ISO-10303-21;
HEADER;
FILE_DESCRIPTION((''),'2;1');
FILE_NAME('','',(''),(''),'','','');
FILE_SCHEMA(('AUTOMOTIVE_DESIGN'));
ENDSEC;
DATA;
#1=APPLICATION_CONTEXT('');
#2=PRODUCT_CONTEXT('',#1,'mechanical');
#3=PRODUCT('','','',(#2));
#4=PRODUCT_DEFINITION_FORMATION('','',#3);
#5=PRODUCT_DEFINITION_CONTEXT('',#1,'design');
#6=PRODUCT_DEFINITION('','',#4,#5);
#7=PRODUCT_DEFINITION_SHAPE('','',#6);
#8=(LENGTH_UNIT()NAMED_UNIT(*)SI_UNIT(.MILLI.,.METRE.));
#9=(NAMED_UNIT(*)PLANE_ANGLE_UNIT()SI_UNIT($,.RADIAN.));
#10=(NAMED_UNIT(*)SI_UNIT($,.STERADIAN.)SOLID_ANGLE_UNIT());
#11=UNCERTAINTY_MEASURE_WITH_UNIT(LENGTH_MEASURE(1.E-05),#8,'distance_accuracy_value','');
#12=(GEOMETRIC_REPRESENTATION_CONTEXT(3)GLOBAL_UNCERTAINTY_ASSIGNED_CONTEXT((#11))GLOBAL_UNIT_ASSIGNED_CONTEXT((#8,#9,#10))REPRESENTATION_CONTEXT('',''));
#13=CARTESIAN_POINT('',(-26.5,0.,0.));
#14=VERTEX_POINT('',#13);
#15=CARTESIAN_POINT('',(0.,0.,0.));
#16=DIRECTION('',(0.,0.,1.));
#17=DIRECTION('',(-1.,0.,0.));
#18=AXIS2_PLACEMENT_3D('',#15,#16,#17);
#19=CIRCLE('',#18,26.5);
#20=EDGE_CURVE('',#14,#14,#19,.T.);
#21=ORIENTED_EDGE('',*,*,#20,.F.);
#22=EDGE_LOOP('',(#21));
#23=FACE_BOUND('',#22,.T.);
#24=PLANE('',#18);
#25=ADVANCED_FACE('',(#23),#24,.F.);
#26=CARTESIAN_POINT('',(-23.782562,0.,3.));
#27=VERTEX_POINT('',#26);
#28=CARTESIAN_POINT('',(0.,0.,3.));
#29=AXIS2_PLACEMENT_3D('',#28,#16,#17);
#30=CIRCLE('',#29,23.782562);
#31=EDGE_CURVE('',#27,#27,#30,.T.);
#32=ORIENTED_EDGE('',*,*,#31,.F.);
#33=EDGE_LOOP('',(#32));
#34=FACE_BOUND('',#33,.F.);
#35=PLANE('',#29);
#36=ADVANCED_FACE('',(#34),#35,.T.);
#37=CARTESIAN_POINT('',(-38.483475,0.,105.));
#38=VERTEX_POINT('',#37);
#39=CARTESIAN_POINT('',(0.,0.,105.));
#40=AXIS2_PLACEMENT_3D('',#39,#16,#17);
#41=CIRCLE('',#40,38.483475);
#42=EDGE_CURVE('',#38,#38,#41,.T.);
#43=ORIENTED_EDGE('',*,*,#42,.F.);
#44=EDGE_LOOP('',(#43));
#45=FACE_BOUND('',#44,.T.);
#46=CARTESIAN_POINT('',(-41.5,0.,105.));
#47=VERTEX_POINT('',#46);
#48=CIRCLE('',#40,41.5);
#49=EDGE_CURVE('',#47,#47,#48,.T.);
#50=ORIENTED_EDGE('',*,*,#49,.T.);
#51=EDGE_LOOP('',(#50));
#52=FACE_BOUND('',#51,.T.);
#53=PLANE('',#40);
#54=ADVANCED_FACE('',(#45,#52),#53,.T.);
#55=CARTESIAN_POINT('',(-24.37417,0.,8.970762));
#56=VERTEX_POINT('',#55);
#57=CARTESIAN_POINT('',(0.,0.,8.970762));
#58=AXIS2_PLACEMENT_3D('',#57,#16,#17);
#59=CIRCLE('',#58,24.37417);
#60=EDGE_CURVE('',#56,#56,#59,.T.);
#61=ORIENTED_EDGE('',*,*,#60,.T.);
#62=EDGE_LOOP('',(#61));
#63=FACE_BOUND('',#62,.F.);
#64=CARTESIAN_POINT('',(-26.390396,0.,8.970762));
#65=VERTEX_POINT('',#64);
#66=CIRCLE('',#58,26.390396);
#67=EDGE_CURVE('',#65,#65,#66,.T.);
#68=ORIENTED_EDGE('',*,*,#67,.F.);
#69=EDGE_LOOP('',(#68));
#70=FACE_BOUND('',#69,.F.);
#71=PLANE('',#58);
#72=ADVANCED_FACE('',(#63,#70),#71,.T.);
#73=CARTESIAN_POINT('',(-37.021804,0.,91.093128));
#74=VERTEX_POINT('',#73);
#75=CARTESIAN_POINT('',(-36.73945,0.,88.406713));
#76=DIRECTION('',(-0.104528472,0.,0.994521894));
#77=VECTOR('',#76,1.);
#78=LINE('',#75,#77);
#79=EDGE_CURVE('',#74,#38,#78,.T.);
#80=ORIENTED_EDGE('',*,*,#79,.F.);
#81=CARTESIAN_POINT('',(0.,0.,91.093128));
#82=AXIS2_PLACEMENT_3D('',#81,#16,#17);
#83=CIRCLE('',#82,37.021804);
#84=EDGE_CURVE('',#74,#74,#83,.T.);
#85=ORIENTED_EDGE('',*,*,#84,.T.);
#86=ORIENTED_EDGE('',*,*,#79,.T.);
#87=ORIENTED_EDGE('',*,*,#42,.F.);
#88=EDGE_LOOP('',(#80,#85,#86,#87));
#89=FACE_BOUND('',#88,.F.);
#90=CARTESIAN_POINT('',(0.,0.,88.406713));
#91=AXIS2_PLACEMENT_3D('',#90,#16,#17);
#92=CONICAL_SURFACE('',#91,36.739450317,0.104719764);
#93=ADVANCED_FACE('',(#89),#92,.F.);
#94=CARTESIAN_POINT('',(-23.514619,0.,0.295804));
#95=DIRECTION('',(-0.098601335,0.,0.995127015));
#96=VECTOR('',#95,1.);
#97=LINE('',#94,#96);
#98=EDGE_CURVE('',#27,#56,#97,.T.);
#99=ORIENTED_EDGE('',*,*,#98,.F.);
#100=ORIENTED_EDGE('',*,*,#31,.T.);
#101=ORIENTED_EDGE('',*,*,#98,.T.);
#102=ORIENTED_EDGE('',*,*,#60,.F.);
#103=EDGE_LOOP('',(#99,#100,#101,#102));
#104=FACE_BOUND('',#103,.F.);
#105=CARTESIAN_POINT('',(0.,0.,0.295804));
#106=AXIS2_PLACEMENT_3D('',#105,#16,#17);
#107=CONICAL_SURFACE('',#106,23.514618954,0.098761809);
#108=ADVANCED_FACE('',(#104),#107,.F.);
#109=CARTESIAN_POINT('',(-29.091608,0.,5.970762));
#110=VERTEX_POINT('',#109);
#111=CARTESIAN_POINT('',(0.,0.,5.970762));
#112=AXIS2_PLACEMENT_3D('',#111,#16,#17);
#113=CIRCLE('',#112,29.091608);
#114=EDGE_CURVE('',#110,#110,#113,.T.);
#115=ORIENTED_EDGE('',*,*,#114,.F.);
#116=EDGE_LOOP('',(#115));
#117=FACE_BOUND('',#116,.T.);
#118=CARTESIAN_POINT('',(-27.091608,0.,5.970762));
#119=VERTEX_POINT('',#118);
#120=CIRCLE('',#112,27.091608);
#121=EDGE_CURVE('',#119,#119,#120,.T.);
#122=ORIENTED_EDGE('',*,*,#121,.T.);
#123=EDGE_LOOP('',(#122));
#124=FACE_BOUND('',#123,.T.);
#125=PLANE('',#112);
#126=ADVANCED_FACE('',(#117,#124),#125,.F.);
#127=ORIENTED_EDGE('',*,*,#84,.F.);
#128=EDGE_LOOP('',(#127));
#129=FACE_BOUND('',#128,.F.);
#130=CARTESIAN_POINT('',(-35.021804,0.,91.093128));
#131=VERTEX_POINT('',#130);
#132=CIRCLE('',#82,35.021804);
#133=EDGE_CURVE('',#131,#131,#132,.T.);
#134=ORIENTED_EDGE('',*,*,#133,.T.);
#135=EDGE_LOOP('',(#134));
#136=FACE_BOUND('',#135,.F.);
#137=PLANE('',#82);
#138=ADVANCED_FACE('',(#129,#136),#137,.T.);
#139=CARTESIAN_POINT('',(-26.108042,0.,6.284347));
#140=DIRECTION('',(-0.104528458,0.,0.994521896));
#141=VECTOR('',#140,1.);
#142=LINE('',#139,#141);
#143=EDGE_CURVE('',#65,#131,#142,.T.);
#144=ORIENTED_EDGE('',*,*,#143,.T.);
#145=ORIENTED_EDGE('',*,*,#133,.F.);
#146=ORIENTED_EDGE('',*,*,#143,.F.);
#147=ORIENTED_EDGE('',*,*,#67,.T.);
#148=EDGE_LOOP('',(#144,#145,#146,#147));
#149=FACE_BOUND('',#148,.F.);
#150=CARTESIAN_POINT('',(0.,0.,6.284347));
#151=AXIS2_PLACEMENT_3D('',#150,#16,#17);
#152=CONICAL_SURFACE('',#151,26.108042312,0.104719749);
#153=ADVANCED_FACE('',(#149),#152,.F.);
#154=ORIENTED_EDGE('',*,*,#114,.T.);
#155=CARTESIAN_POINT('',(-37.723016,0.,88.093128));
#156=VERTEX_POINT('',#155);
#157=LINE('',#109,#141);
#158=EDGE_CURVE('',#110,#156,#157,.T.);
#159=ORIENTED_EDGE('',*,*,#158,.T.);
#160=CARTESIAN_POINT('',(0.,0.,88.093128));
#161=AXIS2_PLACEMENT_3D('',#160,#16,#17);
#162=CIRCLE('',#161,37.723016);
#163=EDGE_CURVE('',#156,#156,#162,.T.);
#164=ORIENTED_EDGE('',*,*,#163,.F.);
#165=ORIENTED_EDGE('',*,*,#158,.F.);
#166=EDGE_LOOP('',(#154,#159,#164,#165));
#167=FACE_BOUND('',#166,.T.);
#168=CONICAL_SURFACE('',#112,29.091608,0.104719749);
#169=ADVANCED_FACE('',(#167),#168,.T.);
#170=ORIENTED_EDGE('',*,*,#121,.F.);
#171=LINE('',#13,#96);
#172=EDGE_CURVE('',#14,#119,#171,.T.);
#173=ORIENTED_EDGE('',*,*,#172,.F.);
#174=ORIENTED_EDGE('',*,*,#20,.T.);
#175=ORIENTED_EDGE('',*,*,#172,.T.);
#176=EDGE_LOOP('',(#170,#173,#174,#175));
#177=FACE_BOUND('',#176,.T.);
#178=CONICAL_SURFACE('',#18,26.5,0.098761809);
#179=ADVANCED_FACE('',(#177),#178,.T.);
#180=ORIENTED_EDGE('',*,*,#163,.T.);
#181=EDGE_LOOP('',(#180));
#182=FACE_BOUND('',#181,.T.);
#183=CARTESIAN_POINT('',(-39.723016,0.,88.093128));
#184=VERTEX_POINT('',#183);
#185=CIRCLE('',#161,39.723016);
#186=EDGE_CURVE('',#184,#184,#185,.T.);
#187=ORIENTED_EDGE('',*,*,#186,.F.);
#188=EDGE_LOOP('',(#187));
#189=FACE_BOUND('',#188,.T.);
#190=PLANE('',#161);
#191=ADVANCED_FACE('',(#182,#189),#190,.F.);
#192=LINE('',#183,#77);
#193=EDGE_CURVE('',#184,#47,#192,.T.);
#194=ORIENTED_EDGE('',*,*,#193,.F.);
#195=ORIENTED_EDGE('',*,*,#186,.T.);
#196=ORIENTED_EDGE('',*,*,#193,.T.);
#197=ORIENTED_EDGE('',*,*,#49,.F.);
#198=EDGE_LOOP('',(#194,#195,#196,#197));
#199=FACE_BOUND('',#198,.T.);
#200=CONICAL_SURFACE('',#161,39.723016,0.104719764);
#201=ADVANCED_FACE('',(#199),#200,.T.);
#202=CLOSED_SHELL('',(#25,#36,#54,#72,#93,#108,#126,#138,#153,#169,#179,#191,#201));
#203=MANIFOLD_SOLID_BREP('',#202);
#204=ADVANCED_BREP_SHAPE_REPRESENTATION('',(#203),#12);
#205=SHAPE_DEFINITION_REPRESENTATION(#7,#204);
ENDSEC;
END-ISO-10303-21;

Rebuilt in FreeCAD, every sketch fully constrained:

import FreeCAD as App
import Part
import Sketcher
from FreeCAD import Vector
Q = App.Units.Quantity


def faces_at(feature, points):
    """Names of the faces that lie closest to the given points."""
    faces = feature.Shape.Faces
    near = lambda p: min(range(len(faces)), key=lambda i: faces[i].distToShape(Part.Vertex(*p))[0])
    return sorted({f"Face{near(p) + 1}" for p in points})

doc = App.newDocument("Part")
body = doc.addObject("PartDesign::Body", "Body")

# Sketch on XZ plane
sketch1 = doc.addObject("Sketcher::SketchObject", "Sketch")
body.addObject(sketch1)
sketch1.AttachmentSupport = (doc.XZ_Plane, [""])
sketch1.MapMode = "FlatFace"
sketch1.addGeometry([
    Part.LineSegment(Vector(-26.5, 0, 0), Vector(0, 0, 0)),  # 0
    Part.LineSegment(Vector(0, 0, 0), Vector(0, 105, 0)),  # 1
    Part.LineSegment(Vector(0, 105, 0), Vector(-41.5, 105, 0)),  # 2
    Part.LineSegment(Vector(-41.5, 105, 0), Vector(-39.723016, 88.093128, 0)),  # 3
    Part.LineSegment(Vector(-39.723016, 88.093128, 0), Vector(-37.723016, 88.093128, 0)),  # 4
    Part.LineSegment(Vector(-37.723016, 88.093128, 0), Vector(-29.091608, 5.970762, 0)),  # 5
    Part.LineSegment(Vector(-29.091608, 5.970762, 0), Vector(-27.091608, 5.970762, 0)),  # 6
    Part.LineSegment(Vector(-27.091608, 5.970762, 0), Vector(-26.5, 0, 0)),  # 7
], False)
sketch1.addConstraint([
    Sketcher.Constraint("Coincident", 0, 2, 1, 1),
    Sketcher.Constraint("Coincident", 1, 2, 2, 1),
    Sketcher.Constraint("Coincident", 2, 2, 3, 1),
    Sketcher.Constraint("Coincident", 3, 2, 4, 1),
    Sketcher.Constraint("Coincident", 4, 2, 5, 1),
    Sketcher.Constraint("Coincident", 5, 2, 6, 1),
    Sketcher.Constraint("Coincident", 6, 2, 7, 1),
    Sketcher.Constraint("Coincident", 7, 2, 0, 1),
    Sketcher.Constraint("Horizontal", 0),
    Sketcher.Constraint("Vertical", 1),
    Sketcher.Constraint("Horizontal", 2),
    Sketcher.Constraint("Horizontal", 4),
    Sketcher.Constraint("Horizontal", 6),
    Sketcher.Constraint("Coincident", 0, 2, -1, 1),
    Sketcher.Constraint("Parallel", 3, 5),
    Sketcher.Constraint("Equal", 4, 6),
    Sketcher.Constraint("DistanceX", 4, 1, 4, 2, 2.0),
    Sketcher.Constraint("DistanceY", 1, 1, 1, 2, 105.0),
    Sketcher.Constraint("Angle", 3, Q("-84 deg")),
    Sketcher.Constraint("Distance", 3, 17.0),
    Sketcher.Constraint("Distance", 7, 6.0),
    Sketcher.Constraint("DistanceX", 0, 1, 0, 2, 26.5),
    Sketcher.Constraint("DistanceX", 2, 2, 2, 1, 41.5),
])
revolution = doc.addObject("PartDesign::Revolution", "Revolution")
body.addObject(revolution)
revolution.Profile = sketch1
revolution.ReferenceAxis = (sketch1, ["V_Axis"])
revolution.Angle = 360
doc.recompute()

thickness = doc.addObject("PartDesign::Thickness", "Thickness")
body.addObject(thickness)
thickness.Base = (revolution, faces_at(revolution, [(0, 0, 105)]))
thickness.Value = 3
thickness.Reversed = True
thickness.Join = "Intersection"

doc.recompute()
